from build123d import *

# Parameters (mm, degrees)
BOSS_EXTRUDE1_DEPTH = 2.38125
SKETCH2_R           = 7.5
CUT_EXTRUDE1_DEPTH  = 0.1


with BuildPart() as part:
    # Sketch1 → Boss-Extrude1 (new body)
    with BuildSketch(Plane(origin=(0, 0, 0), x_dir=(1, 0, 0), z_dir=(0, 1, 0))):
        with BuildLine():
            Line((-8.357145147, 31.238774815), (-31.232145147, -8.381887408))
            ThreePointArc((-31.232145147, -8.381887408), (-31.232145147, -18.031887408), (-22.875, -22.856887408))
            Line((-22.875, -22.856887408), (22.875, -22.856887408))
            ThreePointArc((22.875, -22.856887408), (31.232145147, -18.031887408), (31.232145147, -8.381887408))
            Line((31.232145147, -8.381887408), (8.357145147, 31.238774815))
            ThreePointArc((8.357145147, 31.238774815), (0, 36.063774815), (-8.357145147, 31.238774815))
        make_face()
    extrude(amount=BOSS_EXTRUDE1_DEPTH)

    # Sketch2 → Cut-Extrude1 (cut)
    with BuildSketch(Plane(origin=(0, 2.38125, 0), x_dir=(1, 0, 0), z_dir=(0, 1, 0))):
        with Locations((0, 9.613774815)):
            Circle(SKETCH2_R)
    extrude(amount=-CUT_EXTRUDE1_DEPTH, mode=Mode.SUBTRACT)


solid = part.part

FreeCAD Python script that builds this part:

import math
import FreeCAD as App
import Part
import Sketcher
Q = App.Units.Quantity

doc = App.newDocument("Part")
body = doc.addObject("PartDesign::Body", "Body")

# Sketch on XZ plane
sketch1 = body.newObject("Sketcher::SketchObject", "Sketch")
sketch1.AttachmentSupport = (doc.getObject("XZ_Plane"), [""])
sketch1.MapMode = "FlatFace"
sketch1.addGeometry(Part.LineSegment(App.Vector(-8, -31, 0), App.Vector(-31, 8, 0)), False)
sketch1.addGeometry(Part.ArcOfCircle(Part.Circle(App.Vector(-23, 13, 0), App.Vector(0, 0, 1), 10), math.radians(90), math.radians(210)), False)
sketch1.addGeometry(Part.LineSegment(App.Vector(-23, 23, 0), App.Vector(23, 23, 0)), False)
sketch1.addGeometry(Part.ArcOfCircle(Part.Circle(App.Vector(23, 13, 0), App.Vector(0, 0, 1), 10), math.radians(-30), math.radians(90)), False)
sketch1.addGeometry(Part.LineSegment(App.Vector(31, 8, 0), App.Vector(8, -31, 0)), False)
sketch1.addGeometry(Part.ArcOfCircle(Part.Circle(App.Vector(0, -26, 0), App.Vector(0, 0, 1), 10), math.radians(-150), math.radians(-30)), False)
sketch1.addConstraint(Sketcher.Constraint("Tangent", 0, 2, 1, 2))
sketch1.addConstraint(Sketcher.Constraint("Tangent", 1, 1, 2, 1))
sketch1.addConstraint(Sketcher.Constraint("Tangent", 2, 2, 3, 2))
sketch1.addConstraint(Sketcher.Constraint("Tangent", 3, 1, 4, 1))
sketch1.addConstraint(Sketcher.Constraint("Tangent", 4, 2, 5, 2))
sketch1.addConstraint(Sketcher.Constraint("Tangent", 5, 1, 0, 1))
sketch1.addConstraint(Sketcher.Constraint("Horizontal", 2))
sketch1.addConstraint(Sketcher.Constraint("Equal", 1, 3))
sketch1.addConstraint(Sketcher.Constraint("Equal", 3, 5))
sketch1.addConstraint(Sketcher.Constraint("Symmetric", 0, 2, 3, 1, -2))
sketch1.addConstraint(Sketcher.Constraint("Angle", 0, Q("120 deg")))
sketch1.addConstraint(Sketcher.Constraint("Radius", 1, Q("9.65 mm")))
sketch1.addConstraint(Sketcher.Constraint("DistanceX", 2, 1, 2, 2, Q("45.75 mm")))
sketch1.addConstraint(Sketcher.Constraint("DistanceY", -1, 1, 1, 3, Q("13.206887 mm")))
pad1 = body.newObject("PartDesign::Pad", "Pad")
pad1.Profile = sketch1
pad1.Length = 2.38125
pad1.Reversed = True

# Sketch on XZ plane
sketch2 = body.newObject("Sketcher::SketchObject", "Sketch001")
sketch2.AttachmentSupport = (doc.getObject("XZ_Plane"), [""])
sketch2.MapMode = "FlatFace"
sketch2.AttachmentOffset = App.Placement(App.Vector(0, 0, -2.38125), App.Rotation())
sketch2.addGeometry(Part.Circle(App.Vector(0, -10, 0), App.Vector(0, 0, 1), 8), False)
sketch2.addConstraint(Sketcher.Constraint("PointOnObject", 0, 3, -2))
sketch2.addConstraint(Sketcher.Constraint("Diameter", 0, Q("15 mm")))
sketch2.addConstraint(Sketcher.Constraint("DistanceY", 0, 3, -1, 1, Q("9.613775 mm")))
pocket1 = body.newObject("PartDesign::Pocket", "Pocket")
pocket1.Profile = sketch2
pocket1.Length = 0.1
pocket1.Reversed = True

doc.recompute()
